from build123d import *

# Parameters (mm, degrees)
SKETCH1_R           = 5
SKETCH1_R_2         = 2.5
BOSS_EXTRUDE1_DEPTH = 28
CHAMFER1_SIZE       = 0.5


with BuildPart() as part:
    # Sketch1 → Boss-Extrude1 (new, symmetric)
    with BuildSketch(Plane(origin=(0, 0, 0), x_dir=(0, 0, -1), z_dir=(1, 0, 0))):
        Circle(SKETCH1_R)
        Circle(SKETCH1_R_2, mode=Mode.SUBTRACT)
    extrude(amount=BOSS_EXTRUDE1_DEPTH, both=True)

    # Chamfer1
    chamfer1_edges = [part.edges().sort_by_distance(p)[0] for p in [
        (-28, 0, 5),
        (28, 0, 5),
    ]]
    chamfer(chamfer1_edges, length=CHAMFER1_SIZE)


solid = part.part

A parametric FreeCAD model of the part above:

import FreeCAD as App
import Part
import Sketcher
from FreeCAD import Vector
Q = App.Units.Quantity


def edges_at(feature, points):
    """Names of the edges that pass closest to the given points."""
    edges = feature.Shape.Edges
    near = lambda p: min(range(len(edges)), key=lambda i: edges[i].distToShape(Part.Vertex(*p))[0])
    return sorted({f"Edge{near(p) + 1}" for p in points})

doc = App.newDocument("Part")
body = doc.addObject("PartDesign::Body", "Body")

# Sketch on YZ plane
sketch1 = body.newObject("Sketcher::SketchObject", "Sketch")
sketch1.AttachmentSupport = (doc.getObject("YZ_Plane"), [""])
sketch1.MapMode = "FlatFace"
sketch1.addGeometry([
    Part.Circle(Vector(0, 0, 0), Vector(0, 0, 1), 5),
    Part.Circle(Vector(0, 0, 0), Vector(0, 0, 1), 2.5),
], False)
sketch1.addConstraint([
    Sketcher.Constraint("Coincident", 0, 3, -1, 1),
    Sketcher.Constraint("Coincident", 1, 3, -1, 1),
    Sketcher.Constraint("Diameter", 0, Q("10 mm")),
    Sketcher.Constraint("Diameter", 1, Q("5 mm")),
])
pad1 = body.newObject("PartDesign::Pad", "Pad")
pad1.Profile = sketch1
pad1.Length = 56
pad1.Midplane = True
doc.recompute()

chamfer = body.newObject("PartDesign::Chamfer", "Chamfer")
chamfer.Base = (pad1, edges_at(pad1, [(-28, 0, 5), (28, 0, 5)]))
chamfer.Size = 0.5

doc.recompute()
